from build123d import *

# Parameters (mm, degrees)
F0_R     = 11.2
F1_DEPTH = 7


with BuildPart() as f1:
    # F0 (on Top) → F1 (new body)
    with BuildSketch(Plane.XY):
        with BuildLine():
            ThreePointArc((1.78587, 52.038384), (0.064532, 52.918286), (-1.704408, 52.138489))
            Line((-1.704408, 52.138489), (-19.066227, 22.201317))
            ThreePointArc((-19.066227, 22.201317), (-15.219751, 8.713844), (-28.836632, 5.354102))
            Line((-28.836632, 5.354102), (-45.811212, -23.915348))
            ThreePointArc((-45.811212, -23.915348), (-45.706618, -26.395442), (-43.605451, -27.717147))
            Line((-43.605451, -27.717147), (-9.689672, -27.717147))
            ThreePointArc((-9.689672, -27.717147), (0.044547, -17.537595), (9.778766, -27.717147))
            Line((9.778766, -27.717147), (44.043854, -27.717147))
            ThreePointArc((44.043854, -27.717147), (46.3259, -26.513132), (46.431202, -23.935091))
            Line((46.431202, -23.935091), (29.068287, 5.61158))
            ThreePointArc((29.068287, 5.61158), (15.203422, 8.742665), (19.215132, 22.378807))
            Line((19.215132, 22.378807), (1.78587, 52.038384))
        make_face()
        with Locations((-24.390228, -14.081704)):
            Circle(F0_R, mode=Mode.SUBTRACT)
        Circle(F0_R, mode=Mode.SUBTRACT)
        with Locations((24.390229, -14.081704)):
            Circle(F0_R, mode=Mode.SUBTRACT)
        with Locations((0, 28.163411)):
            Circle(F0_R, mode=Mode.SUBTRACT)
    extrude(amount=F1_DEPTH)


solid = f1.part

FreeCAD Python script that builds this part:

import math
import FreeCAD as App
import Part
import Sketcher
from FreeCAD import Vector

doc = App.newDocument("Part")
body = doc.addObject("PartDesign::Body", "Body")

# Sketch on XY plane
sketch1 = body.newObject("Sketcher::SketchObject", "Sketch")
sketch1.AttachmentSupport = (doc.getObject("XY_Plane"), [""])
sketch1.MapMode = "FlatFace"
sketch1.addGeometry([
    Part.ArcOfCircle(Part.Circle(Vector(0, 50.7, 0), Vector(0, 0, 1), 2.3), math.radians(37), math.radians(139)),  # 0
    Part.LineSegment(Vector(-1.7, 52.1, 0), Vector(-19.1, 22.2, 0)),  # 1
    Part.ArcOfCircle(Part.Circle(Vector(-23.6, 13.6, 0), Vector(0, 0, 1), 9.7), math.radians(-122), math.radians(62)),  # 2
    Part.LineSegment(Vector(-28.8, 5.4, 0), Vector(-45.8, -23.9, 0)),  # 3
    Part.ArcOfCircle(Part.Circle(Vector(-43.4, -25.1, 0), Vector(0, 0, 1), 2.7), math.radians(155), math.radians(266)),  # 4
    Part.LineSegment(Vector(-43.6, -27.7, 0), Vector(-9.7, -27.7, 0)),  # 5
    Part.ArcOfCircle(Part.Circle(Vector(0, -27.3, 0), Vector(0, 0, 1), 9.7), math.radians(-3), math.radians(183)),  # 6
    Part.LineSegment(Vector(9.8, -27.7, 0), Vector(44, -27.7, 0)),  # 7
    Part.ArcOfCircle(Part.Circle(Vector(44.1, -25.1, 0), Vector(0, 0, 1), 2.6), math.radians(-92), math.radians(28)),  # 8
    Part.LineSegment(Vector(46.4, -23.9, 0), Vector(29.1, 5.6, 0)),  # 9
    Part.ArcOfCircle(Part.Circle(Vector(23.6, 13.7, 0), Vector(0, 0, 1), 9.7), math.radians(117), math.radians(304)),  # 10
    Part.LineSegment(Vector(19.2, 22.4, 0), Vector(1.8, 52, 0)),  # 11
    Part.Circle(Vector(-24.4, -14.1, 0), Vector(0, 0, 1), 11.2),  # 12
    Part.Circle(Vector(0, 0, 0), Vector(0, 0, 1), 11.2),  # 13
    Part.Circle(Vector(24.4, -14.1, 0), Vector(0, 0, 1), 11.2),  # 14
    Part.Circle(Vector(0, 28.2, 0), Vector(0, 0, 1), 11.2),  # 15
], False)
sketch1.addConstraint([
    Sketcher.Constraint("Coincident", 0, 2, 1, 1),
    Sketcher.Constraint("Coincident", 1, 2, 2, 2),
    Sketcher.Constraint("Coincident", 2, 1, 3, 1),
    Sketcher.Constraint("Coincident", 3, 2, 4, 1),
    Sketcher.Constraint("Coincident", 4, 2, 5, 1),
    Sketcher.Constraint("Coincident", 5, 2, 6, 2),
    Sketcher.Constraint("Coincident", 6, 1, 7, 1),
    Sketcher.Constraint("Coincident", 7, 2, 8, 1),
    Sketcher.Constraint("Coincident", 8, 2, 9, 1),
    Sketcher.Constraint("Coincident", 9, 2, 10, 2),
    Sketcher.Constraint("Coincident", 10, 1, 11, 1),
    Sketcher.Constraint("Coincident", 11, 2, 0, 1),
    Sketcher.Constraint("Horizontal", 5),
    Sketcher.Constraint("Horizontal", 7),
    Sketcher.Constraint("Coincident", 13, 3, -1, 1),
    Sketcher.Constraint("Equal", 2, 6),
    Sketcher.Constraint("Equal", 6, 10),
    Sketcher.Constraint("Equal", 12, 13),
    Sketcher.Constraint("Equal", 13, 14),
    Sketcher.Constraint("Equal", 14, 15),
    Sketcher.Constraint("Symmetric", 12, 3, 14, 3, -2),
    Sketcher.Constraint("PointOnObject", 15, 3, -2),
    Sketcher.Constraint("Parallel", 1, 3),
    Sketcher.Constraint("Parallel", 9, 11),
    Sketcher.Constraint("Horizontal", 5, 2, 6, 1),
    Sketcher.Constraint("Diameter", 12, 22.4),
    Sketcher.Constraint("Radius", 2, 9.74396),
    Sketcher.Constraint("DistanceY", 0, 3, 11, 2, 1.37),
    Sketcher.Constraint("Radius", 0, 2.250827),
    Sketcher.Constraint("Radius", 4, 2.669433),
    Sketcher.Constraint("Radius", 8, 2.586263),
    Sketcher.Constraint("DistanceX", 5, 1, 5, 2, 33.915779),
    Sketcher.Constraint("DistanceX", 7, 1, 7, 2, 34.265088),
    Sketcher.Constraint("DistanceY", -1, 1, 2, 3, 13.602198),
    Sketcher.Constraint("DistanceX", -1, 1, 8, 3, 44.138899),
    Sketcher.Constraint("DistanceY", -1, 1, 2, 1, 5.354102),
    Sketcher.Constraint("DistanceX", 6, 3, 10, 3, 23.559699),
    Sketcher.Constraint("DistanceY", 4, 2, 3, 2, 3.801799),
    Sketcher.Constraint("Distance", 3, 33.835441),
    Sketcher.Constraint("DistanceY", 8, 3, -1, 1, 25.132631),
    Sketcher.Constraint("DistanceX", 12, 3, -1, 1, 24.390228),
    Sketcher.Constraint("DistanceY", -1, 1, 15, 3, 28.163411),
    Sketcher.Constraint("DistanceY", -1, 1, 0, 2, 52.138489),
    Sketcher.Constraint("DistanceX", 3, 2, -1, 1, 45.811212),
    Sketcher.Constraint("DistanceY", 3, 2, -1, 1, 23.915348),
    Sketcher.Constraint("DistanceX", 4, 2, -1, 1, 43.605451),
    Sketcher.Constraint("DistanceY", 8, 2, -1, 1, 23.935091),
    Sketcher.Constraint("DistanceY", -1, 1, 9, 2, 5.61158),
    Sketcher.Constraint("DistanceX", -1, 1, 10, 1, 19.215132),
    Sketcher.Constraint("DistanceX", -1, 1, 11, 2, 1.78587),
    Sketcher.Constraint("DistanceY", 6, 3, 0, 3, 77.949939),
    Sketcher.Constraint("DistanceY", 4, 3, 12, 3, 10.974109),
])
pad1 = body.newObject("PartDesign::Pad", "Pad")
pad1.Profile = sketch1
pad1.Length = 7

doc.recompute()
